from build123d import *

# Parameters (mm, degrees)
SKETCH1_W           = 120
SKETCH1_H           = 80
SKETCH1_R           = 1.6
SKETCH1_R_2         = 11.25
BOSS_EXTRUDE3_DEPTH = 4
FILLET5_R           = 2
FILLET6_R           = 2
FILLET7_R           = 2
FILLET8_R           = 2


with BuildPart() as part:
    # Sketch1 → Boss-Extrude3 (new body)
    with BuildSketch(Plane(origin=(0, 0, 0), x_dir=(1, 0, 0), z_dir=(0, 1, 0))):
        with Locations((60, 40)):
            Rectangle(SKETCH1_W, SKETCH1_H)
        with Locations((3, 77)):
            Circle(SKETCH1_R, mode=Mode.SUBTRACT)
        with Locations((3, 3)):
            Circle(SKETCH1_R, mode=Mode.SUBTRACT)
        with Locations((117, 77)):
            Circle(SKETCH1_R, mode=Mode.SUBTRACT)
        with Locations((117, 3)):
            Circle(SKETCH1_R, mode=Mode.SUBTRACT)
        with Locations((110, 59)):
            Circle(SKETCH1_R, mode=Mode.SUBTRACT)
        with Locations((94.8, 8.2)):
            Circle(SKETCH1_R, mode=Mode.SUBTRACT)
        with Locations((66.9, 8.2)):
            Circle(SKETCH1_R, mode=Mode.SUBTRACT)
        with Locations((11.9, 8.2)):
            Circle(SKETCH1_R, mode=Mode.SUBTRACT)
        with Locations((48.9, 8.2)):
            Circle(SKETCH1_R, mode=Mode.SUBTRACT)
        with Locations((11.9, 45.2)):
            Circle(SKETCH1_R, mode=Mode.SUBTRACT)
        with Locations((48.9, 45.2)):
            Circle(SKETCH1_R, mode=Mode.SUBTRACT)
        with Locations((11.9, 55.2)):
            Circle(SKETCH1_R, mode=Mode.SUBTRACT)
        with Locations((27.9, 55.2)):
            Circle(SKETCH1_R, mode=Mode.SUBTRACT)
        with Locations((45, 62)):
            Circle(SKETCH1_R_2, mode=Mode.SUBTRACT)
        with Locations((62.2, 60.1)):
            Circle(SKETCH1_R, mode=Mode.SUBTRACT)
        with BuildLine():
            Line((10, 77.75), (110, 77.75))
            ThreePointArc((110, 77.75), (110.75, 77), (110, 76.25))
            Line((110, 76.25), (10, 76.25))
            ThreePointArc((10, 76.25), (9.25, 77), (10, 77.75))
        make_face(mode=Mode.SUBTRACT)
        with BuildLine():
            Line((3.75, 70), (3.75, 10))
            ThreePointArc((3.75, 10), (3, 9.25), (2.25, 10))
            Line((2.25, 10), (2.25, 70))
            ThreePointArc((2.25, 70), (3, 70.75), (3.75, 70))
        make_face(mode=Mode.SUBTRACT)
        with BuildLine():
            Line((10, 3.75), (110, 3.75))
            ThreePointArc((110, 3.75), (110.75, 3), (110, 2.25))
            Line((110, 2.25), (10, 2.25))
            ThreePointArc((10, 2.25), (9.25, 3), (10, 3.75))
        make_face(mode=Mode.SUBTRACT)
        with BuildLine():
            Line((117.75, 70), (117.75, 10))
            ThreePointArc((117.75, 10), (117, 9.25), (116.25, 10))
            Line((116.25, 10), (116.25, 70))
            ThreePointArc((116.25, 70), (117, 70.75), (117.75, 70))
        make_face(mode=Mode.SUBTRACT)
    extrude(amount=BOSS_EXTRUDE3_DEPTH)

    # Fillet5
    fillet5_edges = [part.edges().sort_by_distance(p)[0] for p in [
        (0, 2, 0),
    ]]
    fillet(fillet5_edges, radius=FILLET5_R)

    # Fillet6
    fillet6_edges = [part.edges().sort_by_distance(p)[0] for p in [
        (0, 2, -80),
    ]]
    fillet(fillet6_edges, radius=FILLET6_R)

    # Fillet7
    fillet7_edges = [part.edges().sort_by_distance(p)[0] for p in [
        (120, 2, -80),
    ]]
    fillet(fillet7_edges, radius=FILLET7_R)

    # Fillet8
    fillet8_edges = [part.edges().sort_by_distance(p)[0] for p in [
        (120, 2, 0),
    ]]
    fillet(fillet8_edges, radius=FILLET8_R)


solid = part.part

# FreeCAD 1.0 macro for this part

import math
import FreeCAD as App
import Part
import Sketcher
from FreeCAD import Vector
Q = App.Units.Quantity


def edges_at(feature, points):
    """Names of the edges that pass closest to the given points."""
    edges = feature.Shape.Edges
    near = lambda p: min(range(len(edges)), key=lambda i: edges[i].distToShape(Part.Vertex(*p))[0])
    return sorted({f"Edge{near(p) + 1}" for p in points})

doc = App.newDocument("Part")
body = doc.addObject("PartDesign::Body", "Body")

sketch1 = body.newObject("Sketcher::SketchObject", "Sketch")
sketch1.AttachmentSupport = (doc.getObject("XZ_Plane"), [""])
sketch1.MapMode = "FlatFace"
sketch1.addGeometry([
    Part.LineSegment(Vector(0, -80, 0), Vector(0, 0, 0)),
    Part.LineSegment(Vector(0, 0, 0), Vector(120, 0, 0)),
    Part.LineSegment(Vector(120, 0, 0), Vector(120, -80, 0)),
    Part.LineSegment(Vector(120, -80, 0), Vector(0, -80, 0)),
    Part.Circle(Vector(3, -3, 0), Vector(0, 0, 1), 1.6),
    Part.Circle(Vector(11.9, -8.2, 0), Vector(0, 0, 1), 1.6),
    Part.Circle(Vector(48.9, -8.2, 0), Vector(0, 0, 1), 1.6),
    Part.ArcOfCircle(Part.Circle(Vector(10, -3, 0), Vector(0, 0, 1), 0.8), math.radians(90), math.radians(270)),
    Part.LineSegment(Vector(10, -3.8, 0), Vector(110, -3.8, 0)),
    Part.ArcOfCircle(Part.Circle(Vector(110, -3, 0), Vector(0, 0, 1), 0.8), math.radians(-90), math.radians(90)),
    Part.LineSegment(Vector(110, -2.2, 0), Vector(10, -2.2, 0)),
    Part.Circle(Vector(66.9, -8.2, 0), Vector(0, 0, 1), 1.6),
    Part.Circle(Vector(94.8, -8.2, 0), Vector(0, 0, 1), 1.6),
    Part.Circle(Vector(117, -3, 0), Vector(0, 0, 1), 1.6),
    Part.ArcOfCircle(Part.Circle(Vector(3, -70, 0), Vector(0, 0, 1), 0.8), math.radians(180), math.radians(360)),
    Part.LineSegment(Vector(3.8, -70, 0), Vector(3.8, -10, 0)),
    Part.ArcOfCircle(Part.Circle(Vector(3, -10, 0), Vector(0, 0, 1), 0.8), math.radians(0), math.radians(180)),
    Part.LineSegment(Vector(2.2, -10, 0), Vector(2.2, -70, 0)),
    Part.Circle(Vector(11.9, -45.2, 0), Vector(0, 0, 1), 1.6),
    Part.Circle(Vector(11.9, -55.2, 0), Vector(0, 0, 1), 1.6),
    Part.Circle(Vector(27.9, -55.2, 0), Vector(0, 0, 1), 1.6),
    Part.Circle(Vector(48.9, -45.2, 0), Vector(0, 0, 1), 1.6),
    Part.Circle(Vector(3, -77, 0), Vector(0, 0, 1), 1.6),
    Part.Circle(Vector(45, -62, 0), Vector(0, 0, 1), 11.2),
    Part.ArcOfCircle(Part.Circle(Vector(117, -70, 0), Vector(0, 0, 1), 0.8), math.radians(180), math.radians(360)),
    Part.LineSegment(Vector(117.8, -70, 0), Vector(117.8, -10, 0)),
    Part.ArcOfCircle(Part.Circle(Vector(117, -10, 0), Vector(0, 0, 1), 0.8), math.radians(0), math.radians(180)),
    Part.LineSegment(Vector(116.2, -10, 0), Vector(116.2, -70, 0)),
    Part.Circle(Vector(110, -59, 0), Vector(0, 0, 1), 1.6),
    Part.Circle(Vector(62.2, -60.1, 0), Vector(0, 0, 1), 1.6),
    Part.ArcOfCircle(Part.Circle(Vector(10, -77, 0), Vector(0, 0, 1), 0.8), math.radians(90), math.radians(270)),
    Part.LineSegment(Vector(10, -77.8, 0), Vector(110, -77.8, 0)),
    Part.ArcOfCircle(Part.Circle(Vector(110, -77, 0), Vector(0, 0, 1), 0.8), math.radians(-90), math.radians(90)),
    Part.LineSegment(Vector(110, -76.2, 0), Vector(10, -76.2, 0)),
    Part.Circle(Vector(117, -77, 0), Vector(0, 0, 1), 1.6),
], False)
sketch1.addConstraint([
    Sketcher.Constraint("Coincident", 0, 2, 1, 1),
    Sketcher.Constraint("Coincident", 1, 2, 2, 1),
    Sketcher.Constraint("Coincident", 2, 2, 3, 1),
    Sketcher.Constraint("Coincident", 3, 2, 0, 1),
    Sketcher.Constraint("Tangent", 7, 2, 8, 1),
    Sketcher.Constraint("Tangent", 8, 2, 9, 1),
    Sketcher.Constraint("Tangent", 9, 2, 10, 1),
    Sketcher.Constraint("Tangent", 10, 2, 7, 1),
    Sketcher.Constraint("Tangent", 14, 2, 15, 1),
    Sketcher.Constraint("Tangent", 15, 2, 16, 1),
    Sketcher.Constraint("Tangent", 16, 2, 17, 1),
    Sketcher.Constraint("Tangent", 17, 2, 14, 1),
    Sketcher.Constraint("Tangent", 24, 2, 25, 1),
    Sketcher.Constraint("Tangent", 25, 2, 26, 1),
    Sketcher.Constraint("Tangent", 26, 2, 27, 1),
    Sketcher.Constraint("Tangent", 27, 2, 24, 1),
    Sketcher.Constraint("Tangent", 30, 2, 31, 1),
    Sketcher.Constraint("Tangent", 31, 2, 32, 1),
    Sketcher.Constraint("Tangent", 32, 2, 33, 1),
    Sketcher.Constraint("Tangent", 33, 2, 30, 1),
    Sketcher.Constraint("Vertical", 0),
    Sketcher.Constraint("Horizontal", 1),
    Sketcher.Constraint("Vertical", 2),
    Sketcher.Constraint("Horizontal", 3),
    Sketcher.Constraint("Horizontal", 8),
    Sketcher.Constraint("Horizontal", 10),
    Sketcher.Constraint("Vertical", 15),
    Sketcher.Constraint("Vertical", 17),
    Sketcher.Constraint("Vertical", 25),
    Sketcher.Constraint("Vertical", 27),
    Sketcher.Constraint("Horizontal", 31),
    Sketcher.Constraint("Horizontal", 33),
    Sketcher.Constraint("Coincident", 0, 2, -1, 1),
    Sketcher.Constraint("Equal", 4, 5),
    Sketcher.Constraint("Equal", 5, 6),
    Sketcher.Constraint("Equal", 6, 11),
    Sketcher.Constraint("Equal", 11, 12),
    Sketcher.Constraint("Equal", 12, 13),
    Sketcher.Constraint("Equal", 9, 14),
    Sketcher.Constraint("Equal", 13, 18),
    Sketcher.Constraint("Equal", 18, 19),
    Sketcher.Constraint("Equal", 19, 20),
    Sketcher.Constraint("Equal", 20, 21),
    Sketcher.Constraint("Equal", 21, 22),
    Sketcher.Constraint("Equal", 16, 24),
    Sketcher.Constraint("Equal", 22, 28),
    Sketcher.Constraint("Equal", 28, 29),
    Sketcher.Constraint("Equal", 26, 30),
    Sketcher.Constraint("Equal", 29, 34),
    Sketcher.Constraint("Horizontal", 5, 3, 6, 3),
    Sketcher.Constraint("Horizontal", 4, 3, 7, 3),
    Sketcher.Constraint("Horizontal", 6, 3, 11, 3),
    Sketcher.Constraint("Horizontal", 11, 3, 12, 3),
    Sketcher.Constraint("Horizontal", 9, 3, 13, 3),
    Sketcher.Constraint("Horizontal", 19, 3, 20, 3),
    Sketcher.Constraint("Horizontal", 18, 3, 21, 3),
    Sketcher.Constraint("Horizontal", 14, 3, 24, 3),
    Sketcher.Constraint("Horizontal", 16, 3, 26, 3),
    Sketcher.Constraint("Horizontal", 22, 3, 30, 3),
    Sketcher.Constraint("Horizontal", 32, 3, 34, 3),
    Sketcher.Constraint("Vertical", 4, 3, 14, 3),
    Sketcher.Constraint("Vertical", 5, 3, 18, 3),
    Sketcher.Constraint("Vertical", 18, 3, 19, 3),
    Sketcher.Constraint("Vertical", 6, 3, 21, 3),
    Sketcher.Constraint("Vertical", 16, 3, 22, 3),
    Sketcher.Constraint("Vertical", 13, 3, 24, 3),
    Sketcher.Constraint("Vertical", 9, 3, 28, 3),
    Sketcher.Constraint("Vertical", 7, 3, 30, 3),
    Sketcher.Constraint("Vertical", 28, 3, 32, 3),
    Sketcher.Constraint("Vertical", 26, 3, 34, 3),
    Sketcher.Constraint("Diameter", 4, Q("3.2 mm")),
    Sketcher.Constraint("Diameter", 23, Q("22.5 mm")),
    Sketcher.Constraint("DistanceX", 1, 1, 1, 2, Q("120 mm")),
    Sketcher.Constraint("DistanceX", 8, 1, 8, 2, Q("100 mm")),
    Sketcher.Constraint("DistanceY", 0, 1, 0, 2, Q("80 mm")),
    Sketcher.Constraint("DistanceY", 15, 1, 15, 2, Q("60 mm")),
    Sketcher.Constraint("Radius", 7, Q("0.75 mm")),
    Sketcher.Constraint("DistanceX", -1, 1, 4, 3, Q("3 mm")),
    Sketcher.Constraint("DistanceY", 4, 3, -1, 1, Q("3 mm")),
    Sketcher.Constraint("DistanceX", -1, 1, 7, 3, Q("10 mm")),
    Sketcher.Constraint("DistanceX", -1, 1, 13, 3, Q("117 mm")),
    Sketcher.Constraint("DistanceY", 14, 3, -1, 1, Q("70 mm")),
    Sketcher.Constraint("DistanceY", 22, 3, -1, 1, Q("77 mm")),
    Sketcher.Constraint("DistanceX", -1, 1, 23, 3, Q("45 mm")),
    Sketcher.Constraint("DistanceY", 23, 3, -1, 1, Q("62 mm")),
    Sketcher.Constraint("DistanceY", 28, 3, -1, 1, Q("59 mm")),
    Sketcher.Constraint("DistanceX", 5, 3, 6, 3, Q("37 mm")),
    Sketcher.Constraint("DistanceX", 6, 3, 11, 3, Q("18 mm")),
    Sketcher.Constraint("DistanceY", 18, 3, 5, 3, Q("37 mm")),
    Sketcher.Constraint("DistanceY", 19, 3, 18, 3, Q("10 mm")),
    Sketcher.Constraint("DistanceX", 19, 3, 20, 3, Q("16 mm")),
    Sketcher.Constraint("DistanceX", -1, 1, 5, 3, Q("11.9 mm")),
    Sketcher.Constraint("DistanceY", 5, 3, -1, 1, Q("8.2 mm")),
    Sketcher.Constraint("DistanceX", -1, 1, 12, 3, Q("94.8 mm")),
    Sketcher.Constraint("DistanceX", -1, 1, 29, 3, Q("62.2 mm")),
    Sketcher.Constraint("DistanceY", 29, 3, -1, 1, Q("60.1 mm")),
])
pad1 = body.newObject("PartDesign::Pad", "Pad")
pad1.Profile = sketch1
pad1.Length = 4
pad1.Reversed = True
doc.recompute()

fillet = body.newObject("PartDesign::Fillet", "Fillet")
fillet.Base = (pad1, edges_at(pad1, [(0, 2, 0)]))
fillet.Radius = 2
doc.recompute()

fillet2 = body.newObject("PartDesign::Fillet", "Fillet001")
fillet2.Base = (fillet, edges_at(fillet, [(0, 2, -80)]))
fillet2.Radius = 2
doc.recompute()

fillet3 = body.newObject("PartDesign::Fillet", "Fillet002")
fillet3.Base = (fillet2, edges_at(fillet2, [(120, 2, -80)]))
fillet3.Radius = 2
doc.recompute()

fillet4 = body.newObject("PartDesign::Fillet", "Fillet003")
fillet4.Base = (fillet3, edges_at(fillet3, [(120, 2, 0)]))
fillet4.Radius = 2

doc.recompute()
